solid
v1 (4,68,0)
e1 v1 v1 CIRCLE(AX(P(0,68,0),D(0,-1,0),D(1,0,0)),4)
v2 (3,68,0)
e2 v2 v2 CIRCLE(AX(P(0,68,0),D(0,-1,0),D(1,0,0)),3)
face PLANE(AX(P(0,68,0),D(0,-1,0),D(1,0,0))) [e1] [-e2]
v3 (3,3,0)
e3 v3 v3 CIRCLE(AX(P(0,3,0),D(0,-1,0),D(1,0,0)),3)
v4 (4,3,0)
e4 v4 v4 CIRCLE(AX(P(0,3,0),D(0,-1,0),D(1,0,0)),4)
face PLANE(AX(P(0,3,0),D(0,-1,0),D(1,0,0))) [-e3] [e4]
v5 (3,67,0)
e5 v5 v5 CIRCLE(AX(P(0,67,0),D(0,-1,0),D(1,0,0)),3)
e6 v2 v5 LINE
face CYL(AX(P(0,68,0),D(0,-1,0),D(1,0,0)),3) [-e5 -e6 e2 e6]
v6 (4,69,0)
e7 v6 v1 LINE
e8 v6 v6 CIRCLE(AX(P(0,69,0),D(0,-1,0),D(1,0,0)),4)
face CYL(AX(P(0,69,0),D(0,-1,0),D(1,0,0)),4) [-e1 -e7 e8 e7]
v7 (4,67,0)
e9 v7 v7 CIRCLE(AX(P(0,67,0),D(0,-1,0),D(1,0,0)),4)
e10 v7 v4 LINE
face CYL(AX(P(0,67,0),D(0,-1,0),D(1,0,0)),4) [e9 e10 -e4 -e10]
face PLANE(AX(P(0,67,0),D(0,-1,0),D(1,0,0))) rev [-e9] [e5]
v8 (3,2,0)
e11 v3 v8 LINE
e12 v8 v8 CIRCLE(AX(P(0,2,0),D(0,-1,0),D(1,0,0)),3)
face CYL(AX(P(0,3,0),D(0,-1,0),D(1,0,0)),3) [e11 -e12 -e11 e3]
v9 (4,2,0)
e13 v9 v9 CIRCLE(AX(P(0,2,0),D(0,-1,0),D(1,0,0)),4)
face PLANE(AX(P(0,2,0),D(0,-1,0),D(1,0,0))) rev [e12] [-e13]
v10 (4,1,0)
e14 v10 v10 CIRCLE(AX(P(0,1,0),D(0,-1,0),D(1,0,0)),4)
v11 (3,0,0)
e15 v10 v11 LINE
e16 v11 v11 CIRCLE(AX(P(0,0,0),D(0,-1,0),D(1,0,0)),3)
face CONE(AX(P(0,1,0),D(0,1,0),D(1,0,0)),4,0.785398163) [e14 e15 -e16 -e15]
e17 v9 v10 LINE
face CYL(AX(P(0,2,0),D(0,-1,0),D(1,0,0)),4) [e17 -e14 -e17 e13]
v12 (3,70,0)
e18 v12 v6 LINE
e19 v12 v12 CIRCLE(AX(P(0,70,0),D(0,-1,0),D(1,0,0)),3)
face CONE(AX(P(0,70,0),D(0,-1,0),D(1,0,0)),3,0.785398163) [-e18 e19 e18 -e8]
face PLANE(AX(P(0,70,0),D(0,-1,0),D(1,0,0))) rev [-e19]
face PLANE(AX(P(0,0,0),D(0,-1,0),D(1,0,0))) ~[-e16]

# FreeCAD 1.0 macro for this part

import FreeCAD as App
import Part
import Sketcher

V = App.Vector
Q = App.Units.Quantity

doc = App.newDocument("Part")
body = doc.addObject("PartDesign::Body", "Body")

sketch1 = body.newObject("Sketcher::SketchObject", "Sketch")
sketch1.AttachmentSupport = (doc.getObject("XY_Plane"), [""])
sketch1.MapMode = "FlatFace"
sketch1.addGeometry([
    Part.LineSegment(V(3, 70, 0), V(0, 70, 0)),
    Part.LineSegment(V(0, 70, 0), V(0, 0, 0)),
    Part.LineSegment(V(0, 0, 0), V(3, 0, 0)),
    Part.LineSegment(V(3, 0, 0), V(4, 1, 0)),
    Part.LineSegment(V(4, 1, 0), V(4, 2, 0)),
    Part.LineSegment(V(4, 2, 0), V(3, 2, 0)),
    Part.LineSegment(V(3, 2, 0), V(3, 3, 0)),
    Part.LineSegment(V(3, 3, 0), V(4, 3, 0)),
    Part.LineSegment(V(4, 3, 0), V(4, 67, 0)),
    Part.LineSegment(V(4, 67, 0), V(3, 67, 0)),
    Part.LineSegment(V(3, 67, 0), V(3, 68, 0)),
    Part.LineSegment(V(3, 68, 0), V(4, 68, 0)),
    Part.LineSegment(V(4, 68, 0), V(4, 69, 0)),
    Part.LineSegment(V(4, 69, 0), V(3, 70, 0)),
], False)
sketch1.addConstraint([
    Sketcher.Constraint("Coincident", 0, 2, 1, 1),
    Sketcher.Constraint("Coincident", 1, 2, 2, 1),
    Sketcher.Constraint("Coincident", 2, 2, 3, 1),
    Sketcher.Constraint("Coincident", 3, 2, 4, 1),
    Sketcher.Constraint("Coincident", 4, 2, 5, 1),
    Sketcher.Constraint("Coincident", 5, 2, 6, 1),
    Sketcher.Constraint("Coincident", 6, 2, 7, 1),
    Sketcher.Constraint("Coincident", 7, 2, 8, 1),
    Sketcher.Constraint("Coincident", 8, 2, 9, 1),
    Sketcher.Constraint("Coincident", 9, 2, 10, 1),
    Sketcher.Constraint("Coincident", 10, 2, 11, 1),
    Sketcher.Constraint("Coincident", 11, 2, 12, 1),
    Sketcher.Constraint("Coincident", 12, 2, 13, 1),
    Sketcher.Constraint("Coincident", 13, 2, 0, 1),
    Sketcher.Constraint("Horizontal", 0),
    Sketcher.Constraint("Vertical", 1),
    Sketcher.Constraint("Horizontal", 2),
    Sketcher.Constraint("Vertical", 4),
    Sketcher.Constraint("Horizontal", 5),
    Sketcher.Constraint("Vertical", 6),
    Sketcher.Constraint("Horizontal", 7),
    Sketcher.Constraint("Vertical", 8),
    Sketcher.Constraint("Horizontal", 9),
    Sketcher.Constraint("Vertical", 10),
    Sketcher.Constraint("Horizontal", 11),
    Sketcher.Constraint("Vertical", 12),
    Sketcher.Constraint("Coincident", 1, 2, -1, 1),
    Sketcher.Constraint("Perpendicular", 3, 13),
    Sketcher.Constraint("Vertical", 2, 2, 5, 2),
    Sketcher.Constraint("Vertical", 4, 2, 7, 2),
    Sketcher.Constraint("Vertical", 6, 2, 9, 2),
    Sketcher.Constraint("Vertical", 8, 2, 11, 2),
    Sketcher.Constraint("Vertical", 10, 2, 13, 2),
    Sketcher.Constraint("Equal", 11, 4),
    Sketcher.Constraint("Equal", 4, 6),
    Sketcher.Constraint("Equal", 6, 10),
    Sketcher.Constraint("Equal", 10, 12),
    Sketcher.Constraint("Equal", 3, 13),
    Sketcher.Constraint("DistanceX", 5, 2, 5, 1, Q("1 mm")),
    Sketcher.Constraint("DistanceY", 4, 2, 8, 2, Q("65 mm")),
    Sketcher.Constraint("DistanceX", 0, 2, 0, 1, Q("3 mm")),
])
revolution = body.newObject("PartDesign::Revolution", "Revolution")
revolution.Profile = sketch1
revolution.ReferenceAxis = (sketch1, ["V_Axis"])
revolution.Angle = 360

doc.recompute()
